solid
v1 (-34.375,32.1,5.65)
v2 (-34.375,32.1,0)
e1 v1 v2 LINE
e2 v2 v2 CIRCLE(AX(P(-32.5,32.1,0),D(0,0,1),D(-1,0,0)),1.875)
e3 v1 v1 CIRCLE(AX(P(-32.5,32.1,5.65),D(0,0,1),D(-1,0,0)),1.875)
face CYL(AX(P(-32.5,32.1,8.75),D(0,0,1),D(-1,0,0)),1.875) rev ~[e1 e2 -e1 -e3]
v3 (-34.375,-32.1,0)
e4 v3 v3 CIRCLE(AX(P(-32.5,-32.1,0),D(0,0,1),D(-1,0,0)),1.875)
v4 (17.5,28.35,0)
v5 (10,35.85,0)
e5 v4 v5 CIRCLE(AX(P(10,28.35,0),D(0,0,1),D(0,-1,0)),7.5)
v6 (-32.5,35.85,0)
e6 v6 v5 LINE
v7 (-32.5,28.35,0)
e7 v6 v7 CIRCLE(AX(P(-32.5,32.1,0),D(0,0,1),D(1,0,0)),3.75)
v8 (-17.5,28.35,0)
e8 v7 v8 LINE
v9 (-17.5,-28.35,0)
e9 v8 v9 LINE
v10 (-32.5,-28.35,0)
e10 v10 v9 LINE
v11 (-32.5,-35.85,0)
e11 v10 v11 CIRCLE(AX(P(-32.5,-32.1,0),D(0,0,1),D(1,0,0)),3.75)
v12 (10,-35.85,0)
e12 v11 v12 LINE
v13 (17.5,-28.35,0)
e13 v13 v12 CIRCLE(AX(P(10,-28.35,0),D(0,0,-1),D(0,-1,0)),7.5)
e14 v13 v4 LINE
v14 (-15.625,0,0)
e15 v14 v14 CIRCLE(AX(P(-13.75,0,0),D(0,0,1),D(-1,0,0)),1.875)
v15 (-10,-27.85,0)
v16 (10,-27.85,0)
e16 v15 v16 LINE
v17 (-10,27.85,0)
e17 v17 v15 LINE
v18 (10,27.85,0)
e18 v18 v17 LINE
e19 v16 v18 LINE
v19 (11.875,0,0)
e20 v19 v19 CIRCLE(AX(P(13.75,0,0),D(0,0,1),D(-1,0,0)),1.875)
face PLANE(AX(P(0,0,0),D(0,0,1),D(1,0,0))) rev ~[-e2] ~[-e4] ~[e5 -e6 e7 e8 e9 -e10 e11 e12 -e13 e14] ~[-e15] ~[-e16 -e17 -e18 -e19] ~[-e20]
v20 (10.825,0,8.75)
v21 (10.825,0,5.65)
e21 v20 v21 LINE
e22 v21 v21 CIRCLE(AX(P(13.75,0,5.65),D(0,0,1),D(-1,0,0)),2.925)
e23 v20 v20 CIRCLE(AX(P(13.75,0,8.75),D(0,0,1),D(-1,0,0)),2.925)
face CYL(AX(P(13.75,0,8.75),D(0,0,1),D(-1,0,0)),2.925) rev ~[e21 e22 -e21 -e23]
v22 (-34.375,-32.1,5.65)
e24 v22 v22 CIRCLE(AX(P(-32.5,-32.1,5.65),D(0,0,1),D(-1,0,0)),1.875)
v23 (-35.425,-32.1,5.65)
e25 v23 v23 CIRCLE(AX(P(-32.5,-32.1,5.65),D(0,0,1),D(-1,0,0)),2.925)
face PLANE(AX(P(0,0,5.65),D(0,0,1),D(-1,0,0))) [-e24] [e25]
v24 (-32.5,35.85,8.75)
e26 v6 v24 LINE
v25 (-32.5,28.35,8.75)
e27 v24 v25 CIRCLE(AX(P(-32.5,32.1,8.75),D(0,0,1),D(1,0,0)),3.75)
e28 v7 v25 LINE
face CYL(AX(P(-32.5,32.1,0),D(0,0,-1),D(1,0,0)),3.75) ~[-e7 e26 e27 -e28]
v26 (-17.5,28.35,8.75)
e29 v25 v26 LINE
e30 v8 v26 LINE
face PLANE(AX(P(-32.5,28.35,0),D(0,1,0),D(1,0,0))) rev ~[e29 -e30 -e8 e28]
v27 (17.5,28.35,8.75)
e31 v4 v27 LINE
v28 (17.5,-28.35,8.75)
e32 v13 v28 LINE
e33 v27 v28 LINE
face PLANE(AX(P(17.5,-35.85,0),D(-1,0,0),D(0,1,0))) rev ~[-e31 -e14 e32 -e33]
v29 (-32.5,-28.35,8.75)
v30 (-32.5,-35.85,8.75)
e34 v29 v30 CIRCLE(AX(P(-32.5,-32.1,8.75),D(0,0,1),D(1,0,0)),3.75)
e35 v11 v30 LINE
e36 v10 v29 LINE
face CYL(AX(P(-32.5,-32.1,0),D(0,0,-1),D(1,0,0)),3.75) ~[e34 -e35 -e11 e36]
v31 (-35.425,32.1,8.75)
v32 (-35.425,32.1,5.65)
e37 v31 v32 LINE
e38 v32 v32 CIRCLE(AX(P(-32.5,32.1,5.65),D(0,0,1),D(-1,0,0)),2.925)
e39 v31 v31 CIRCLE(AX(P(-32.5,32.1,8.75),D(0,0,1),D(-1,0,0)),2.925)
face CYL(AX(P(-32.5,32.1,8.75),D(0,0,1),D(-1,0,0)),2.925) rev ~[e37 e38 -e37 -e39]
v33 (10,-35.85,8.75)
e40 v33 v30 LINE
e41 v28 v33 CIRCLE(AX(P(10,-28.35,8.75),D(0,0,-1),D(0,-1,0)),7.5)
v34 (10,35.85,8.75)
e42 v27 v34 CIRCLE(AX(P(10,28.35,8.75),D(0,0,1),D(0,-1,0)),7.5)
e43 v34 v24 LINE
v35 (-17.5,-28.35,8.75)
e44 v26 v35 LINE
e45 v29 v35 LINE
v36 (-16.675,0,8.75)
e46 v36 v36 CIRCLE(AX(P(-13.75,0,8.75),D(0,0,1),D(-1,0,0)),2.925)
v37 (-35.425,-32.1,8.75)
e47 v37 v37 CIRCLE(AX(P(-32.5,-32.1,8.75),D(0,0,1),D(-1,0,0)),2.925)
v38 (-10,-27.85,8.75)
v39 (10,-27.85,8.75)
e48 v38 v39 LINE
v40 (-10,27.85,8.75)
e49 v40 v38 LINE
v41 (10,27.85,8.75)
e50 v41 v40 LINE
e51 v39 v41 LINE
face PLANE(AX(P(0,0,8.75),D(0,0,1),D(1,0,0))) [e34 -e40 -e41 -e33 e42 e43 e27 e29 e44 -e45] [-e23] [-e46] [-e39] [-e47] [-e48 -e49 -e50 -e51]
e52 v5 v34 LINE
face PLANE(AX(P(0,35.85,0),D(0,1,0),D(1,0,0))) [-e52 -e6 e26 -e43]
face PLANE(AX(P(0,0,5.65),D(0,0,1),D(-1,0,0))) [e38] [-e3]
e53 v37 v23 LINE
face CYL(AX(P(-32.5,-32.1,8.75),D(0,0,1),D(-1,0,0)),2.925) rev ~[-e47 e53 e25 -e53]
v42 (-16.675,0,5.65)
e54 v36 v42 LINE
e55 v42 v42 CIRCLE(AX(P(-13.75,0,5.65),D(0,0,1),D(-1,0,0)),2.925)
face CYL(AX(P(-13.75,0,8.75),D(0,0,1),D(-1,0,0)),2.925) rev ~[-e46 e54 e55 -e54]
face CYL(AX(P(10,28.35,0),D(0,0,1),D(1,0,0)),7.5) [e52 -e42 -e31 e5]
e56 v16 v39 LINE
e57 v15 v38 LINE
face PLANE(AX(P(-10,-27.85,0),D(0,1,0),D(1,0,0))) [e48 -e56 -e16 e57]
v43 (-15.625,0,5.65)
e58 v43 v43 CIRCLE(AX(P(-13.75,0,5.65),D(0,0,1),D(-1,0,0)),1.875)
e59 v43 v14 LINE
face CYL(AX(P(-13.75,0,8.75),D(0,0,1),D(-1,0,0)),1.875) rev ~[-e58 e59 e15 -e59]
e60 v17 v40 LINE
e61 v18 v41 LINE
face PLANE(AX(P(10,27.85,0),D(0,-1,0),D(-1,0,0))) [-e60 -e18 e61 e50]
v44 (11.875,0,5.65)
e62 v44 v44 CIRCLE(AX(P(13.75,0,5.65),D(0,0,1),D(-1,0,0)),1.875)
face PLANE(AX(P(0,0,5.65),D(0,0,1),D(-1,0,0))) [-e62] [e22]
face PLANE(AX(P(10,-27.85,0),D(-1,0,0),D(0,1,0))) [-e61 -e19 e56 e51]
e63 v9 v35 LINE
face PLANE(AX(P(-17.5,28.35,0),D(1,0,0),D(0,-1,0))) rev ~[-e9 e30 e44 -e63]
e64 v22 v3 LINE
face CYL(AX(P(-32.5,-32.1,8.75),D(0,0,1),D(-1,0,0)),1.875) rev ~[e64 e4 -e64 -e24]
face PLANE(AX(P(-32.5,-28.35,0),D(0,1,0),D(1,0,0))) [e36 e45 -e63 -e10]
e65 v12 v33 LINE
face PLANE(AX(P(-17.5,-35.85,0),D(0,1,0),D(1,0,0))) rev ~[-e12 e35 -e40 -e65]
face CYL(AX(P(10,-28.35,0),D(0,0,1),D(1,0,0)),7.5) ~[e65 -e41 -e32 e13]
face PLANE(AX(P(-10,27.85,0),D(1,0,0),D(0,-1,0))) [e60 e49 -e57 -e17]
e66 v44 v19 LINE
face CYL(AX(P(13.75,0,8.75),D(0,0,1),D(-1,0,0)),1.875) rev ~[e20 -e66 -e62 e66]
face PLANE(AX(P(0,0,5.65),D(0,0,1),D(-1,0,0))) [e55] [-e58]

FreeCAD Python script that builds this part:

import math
import FreeCAD as App
import Part
import Sketcher

V = App.Vector
Q = App.Units.Quantity


def edges_at(feature, points):
    """Names of the edges that pass closest to the given points."""
    edges = feature.Shape.Edges
    near = lambda p: min(range(len(edges)), key=lambda i: edges[i].distToShape(Part.Vertex(*p))[0])
    return sorted({f"Edge{near(p) + 1}" for p in points})

doc = App.newDocument("Part")
params = doc.addObject("Spreadsheet::Sheet", "Params")
for row, (alias, value) in enumerate([
    ("sketch1_width", "15 mm"),
    ("sketch1_width2", "20 mm"),
    ("sketch1_radius", "3.75 mm"),
    ("sketch1_height", "55.7 mm"),
    ("pad1_length", "8.75 mm"),
    ("sketch2_diameter", "3.75 mm"),
    ("pocket1_length", "26 mm"),
    ("sketch3_diameter", "5.85 mm"),
    ("sketch3_diameter2", "3.75 mm"),
    ("pocket2_length", "3.1 mm"),
    ("fillet_radius", "7.5 mm"),
], start=1):
    params.set(f"A{row}", alias)
    params.set(f"B{row}", "=" + value)
    params.setAlias(f"B{row}", alias)

body = doc.addObject("PartDesign::Body", "Body")

sketch1 = body.newObject("Sketcher::SketchObject", "Sketch")
sketch1.AttachmentSupport = (doc.getObject("XY_Plane"), [""])
sketch1.MapMode = "FlatFace"
sketch1.addGeometry([
    Part.LineSegment(V(17.5, -35.9, 0), V(17.5, 35.9, 0)),
    Part.LineSegment(V(17.5, 35.9, 0), V(-32.5, 35.9, 0)),
    Part.ArcOfCircle(Part.Circle(V(-32.5, 32.1, 0), V(0, 0, 1), 3.8), math.radians(90), math.radians(270)),
    Part.LineSegment(V(-32.5, 28.4, 0), V(-17.5, 28.4, 0)),
    Part.LineSegment(V(-17.5, 28.4, 0), V(-17.5, -28.4, 0)),
    Part.LineSegment(V(-17.5, -28.4, 0), V(-32.5, -28.4, 0)),
    Part.ArcOfCircle(Part.Circle(V(-32.5, -32.1, 0), V(0, 0, 1), 3.8), math.radians(90), math.radians(270)),
    Part.LineSegment(V(-32.5, -35.9, 0), V(17.5, -35.9, 0)),
    Part.LineSegment(V(-10, 27.9, 0), V(10, 27.9, 0)),
    Part.LineSegment(V(10, 27.9, 0), V(10, -27.9, 0)),
    Part.LineSegment(V(10, -27.9, 0), V(-10, -27.9, 0)),
    Part.LineSegment(V(-10, -27.9, 0), V(-10, 27.9, 0)),
], False)
sketch1.addConstraint([
    Sketcher.Constraint("Coincident", 0, 2, 1, 1),
    Sketcher.Constraint("Tangent", 1, 2, 2, 1),
    Sketcher.Constraint("Tangent", 2, 2, 3, 1),
    Sketcher.Constraint("Coincident", 3, 2, 4, 1),
    Sketcher.Constraint("Coincident", 4, 2, 5, 1),
    Sketcher.Constraint("Tangent", 5, 2, 6, 1),
    Sketcher.Constraint("Tangent", 6, 2, 7, 1),
    Sketcher.Constraint("Coincident", 7, 2, 0, 1),
    Sketcher.Constraint("Coincident", 8, 2, 9, 1),
    Sketcher.Constraint("Coincident", 9, 2, 10, 1),
    Sketcher.Constraint("Coincident", 10, 2, 11, 1),
    Sketcher.Constraint("Coincident", 11, 2, 8, 1),
    Sketcher.Constraint("Vertical", 0),
    Sketcher.Constraint("Horizontal", 1),
    Sketcher.Constraint("Horizontal", 3),
    Sketcher.Constraint("Vertical", 4),
    Sketcher.Constraint("Horizontal", 5),
    Sketcher.Constraint("Horizontal", 7),
    Sketcher.Constraint("Horizontal", 8),
    Sketcher.Constraint("Vertical", 9),
    Sketcher.Constraint("Horizontal", 10),
    Sketcher.Constraint("Vertical", 11),
    Sketcher.Constraint("Equal", 2, 6),
    Sketcher.Constraint("Symmetric", 8, 2, 10, 2, -1, 1),
    Sketcher.Constraint("Symmetric", 2, 3, 6, 3, -1),
    Sketcher.Constraint("DistanceX", 3, 1, 3, 2, Q("15 mm")),
    Sketcher.Constraint("DistanceX", 8, 1, 8, 2, Q("20 mm")),
    Sketcher.Constraint("Radius", 2, Q("3.75 mm")),
    Sketcher.Constraint("DistanceY", 9, 2, 9, 1, Q("55.7 mm")),
    Sketcher.Constraint("DistanceX", 3, 2, 0, 2, Q("35 mm")),
    Sketcher.Constraint("DistanceY", 8, 2, 0, 2, Q("8 mm")),
    Sketcher.Constraint("DistanceX", 8, 2, 0, 2, Q("7.5 mm")),
])
sketch1.setExpression("Constraints[25]", "Params.sketch1_width")
sketch1.setExpression("Constraints[26]", "Params.sketch1_width2")
sketch1.setExpression("Constraints[27]", "Params.sketch1_radius")
sketch1.setExpression("Constraints[28]", "Params.sketch1_height")
pad1 = body.newObject("PartDesign::Pad", "Pad")
pad1.Profile = sketch1
pad1.setExpression("Length", "Params.pad1_length")

sketch2 = body.newObject("Sketcher::SketchObject", "Sketch001")
sketch2.AttachmentSupport = (doc.getObject("XY_Plane"), [""])
sketch2.MapMode = "FlatFace"
sketch2.AttachmentOffset = App.Placement(V(0, 0, 8.75), App.Rotation())
sketch2.addGeometry([
    Part.Circle(V(-32.5, 32.1, 0), V(0, 0, 1), 1.9),
    Part.Circle(V(-32.5, -32.1, 0), V(0, 0, 1), 1.9),
    Part.Circle(V(-13.8, 0, 0), V(0, 0, 1), 1.9),
    Part.Circle(V(13.8, 0, 0), V(0, 0, 1), 1.9),
], False)
sketch2.addConstraint([
    Sketcher.Constraint("Equal", 0, 1),
    Sketcher.Constraint("Equal", 1, 2),
    Sketcher.Constraint("Equal", 2, 3),
    Sketcher.Constraint("Symmetric", 2, 3, 3, 3, -1, 1),
    Sketcher.Constraint("Symmetric", 0, 3, 1, 3, -1),
    Sketcher.Constraint("PointOnObject", 2, 3, -1),
    Sketcher.Constraint("Diameter", 0, Q("3.75 mm")),
    Sketcher.Constraint("DistanceX", 0, 3, -1, 1, Q("32.5 mm")),
    Sketcher.Constraint("DistanceY", -1, 1, 0, 3, Q("32.1 mm")),
    Sketcher.Constraint("DistanceX", 2, 3, 3, 3, Q("27.5 mm")),
])
sketch2.setExpression("Constraints[6]", "Params.sketch2_diameter")
pocket1 = body.newObject("PartDesign::Pocket", "Pocket")
pocket1.Profile = sketch2
pocket1.setExpression("Length", "Params.pocket1_length")

sketch3 = body.newObject("Sketcher::SketchObject", "Sketch002")
sketch3.AttachmentSupport = (doc.getObject("XY_Plane"), [""])
sketch3.MapMode = "FlatFace"
sketch3.AttachmentOffset = App.Placement(V(0, 0, 8.75), App.Rotation())
sketch3.addGeometry([
    Part.Circle(V(-32.5, 32.1, 0), V(0, 0, 1), 2.9),
    Part.Circle(V(-32.5, 32.1, 0), V(0, 0, 1), 1.9),
    Part.Circle(V(-32.5, -32.1, 0), V(0, 0, 1), 2.9),
    Part.Circle(V(-32.5, -32.1, 0), V(0, 0, 1), 1.9),
    Part.Circle(V(-13.8, 0, 0), V(0, 0, 1), 2.9),
    Part.Circle(V(-13.8, 0, 0), V(0, 0, 1), 1.9),
    Part.Circle(V(13.8, 0, 0), V(0, 0, 1), 2.9),
    Part.Circle(V(13.8, 0, 0), V(0, 0, 1), 1.9),
], False)
sketch3.addConstraint([
    Sketcher.Constraint("Coincident", 1, 3, 0, 3),
    Sketcher.Constraint("Coincident", 3, 3, 2, 3),
    Sketcher.Constraint("Coincident", 5, 3, 4, 3),
    Sketcher.Constraint("Coincident", 7, 3, 6, 3),
    Sketcher.Constraint("Equal", 0, 2),
    Sketcher.Constraint("Equal", 1, 3),
    Sketcher.Constraint("Equal", 2, 4),
    Sketcher.Constraint("Equal", 3, 5),
    Sketcher.Constraint("Equal", 4, 6),
    Sketcher.Constraint("Equal", 5, 7),
    Sketcher.Constraint("Symmetric", 4, 3, 6, 3, -1, 1),
    Sketcher.Constraint("Symmetric", 0, 3, 2, 3, -1),
    Sketcher.Constraint("PointOnObject", 4, 3, -1),
    Sketcher.Constraint("Diameter", 0, Q("5.85 mm")),
    Sketcher.Constraint("Diameter", 1, Q("3.75 mm")),
    Sketcher.Constraint("DistanceX", 0, 3, -1, 1, Q("32.5 mm")),
    Sketcher.Constraint("DistanceY", -1, 1, 0, 3, Q("32.1 mm")),
    Sketcher.Constraint("DistanceX", 4, 3, 6, 3, Q("27.5 mm")),
])
sketch3.setExpression("Constraints[13]", "Params.sketch3_diameter")
sketch3.setExpression("Constraints[14]", "Params.sketch3_diameter2")
pocket2 = body.newObject("PartDesign::Pocket", "Pocket001")
pocket2.Profile = sketch3
pocket2.setExpression("Length", "Params.pocket2_length")
doc.recompute()

fillet = body.newObject("PartDesign::Fillet", "Fillet")
fillet.Base = (pocket2, edges_at(pocket2, [(17.5, 35.85, 4.375), (17.5, -35.85, 4.375)]))
fillet.setExpression("Radius", "Params.fillet_radius")

doc.recompute()
